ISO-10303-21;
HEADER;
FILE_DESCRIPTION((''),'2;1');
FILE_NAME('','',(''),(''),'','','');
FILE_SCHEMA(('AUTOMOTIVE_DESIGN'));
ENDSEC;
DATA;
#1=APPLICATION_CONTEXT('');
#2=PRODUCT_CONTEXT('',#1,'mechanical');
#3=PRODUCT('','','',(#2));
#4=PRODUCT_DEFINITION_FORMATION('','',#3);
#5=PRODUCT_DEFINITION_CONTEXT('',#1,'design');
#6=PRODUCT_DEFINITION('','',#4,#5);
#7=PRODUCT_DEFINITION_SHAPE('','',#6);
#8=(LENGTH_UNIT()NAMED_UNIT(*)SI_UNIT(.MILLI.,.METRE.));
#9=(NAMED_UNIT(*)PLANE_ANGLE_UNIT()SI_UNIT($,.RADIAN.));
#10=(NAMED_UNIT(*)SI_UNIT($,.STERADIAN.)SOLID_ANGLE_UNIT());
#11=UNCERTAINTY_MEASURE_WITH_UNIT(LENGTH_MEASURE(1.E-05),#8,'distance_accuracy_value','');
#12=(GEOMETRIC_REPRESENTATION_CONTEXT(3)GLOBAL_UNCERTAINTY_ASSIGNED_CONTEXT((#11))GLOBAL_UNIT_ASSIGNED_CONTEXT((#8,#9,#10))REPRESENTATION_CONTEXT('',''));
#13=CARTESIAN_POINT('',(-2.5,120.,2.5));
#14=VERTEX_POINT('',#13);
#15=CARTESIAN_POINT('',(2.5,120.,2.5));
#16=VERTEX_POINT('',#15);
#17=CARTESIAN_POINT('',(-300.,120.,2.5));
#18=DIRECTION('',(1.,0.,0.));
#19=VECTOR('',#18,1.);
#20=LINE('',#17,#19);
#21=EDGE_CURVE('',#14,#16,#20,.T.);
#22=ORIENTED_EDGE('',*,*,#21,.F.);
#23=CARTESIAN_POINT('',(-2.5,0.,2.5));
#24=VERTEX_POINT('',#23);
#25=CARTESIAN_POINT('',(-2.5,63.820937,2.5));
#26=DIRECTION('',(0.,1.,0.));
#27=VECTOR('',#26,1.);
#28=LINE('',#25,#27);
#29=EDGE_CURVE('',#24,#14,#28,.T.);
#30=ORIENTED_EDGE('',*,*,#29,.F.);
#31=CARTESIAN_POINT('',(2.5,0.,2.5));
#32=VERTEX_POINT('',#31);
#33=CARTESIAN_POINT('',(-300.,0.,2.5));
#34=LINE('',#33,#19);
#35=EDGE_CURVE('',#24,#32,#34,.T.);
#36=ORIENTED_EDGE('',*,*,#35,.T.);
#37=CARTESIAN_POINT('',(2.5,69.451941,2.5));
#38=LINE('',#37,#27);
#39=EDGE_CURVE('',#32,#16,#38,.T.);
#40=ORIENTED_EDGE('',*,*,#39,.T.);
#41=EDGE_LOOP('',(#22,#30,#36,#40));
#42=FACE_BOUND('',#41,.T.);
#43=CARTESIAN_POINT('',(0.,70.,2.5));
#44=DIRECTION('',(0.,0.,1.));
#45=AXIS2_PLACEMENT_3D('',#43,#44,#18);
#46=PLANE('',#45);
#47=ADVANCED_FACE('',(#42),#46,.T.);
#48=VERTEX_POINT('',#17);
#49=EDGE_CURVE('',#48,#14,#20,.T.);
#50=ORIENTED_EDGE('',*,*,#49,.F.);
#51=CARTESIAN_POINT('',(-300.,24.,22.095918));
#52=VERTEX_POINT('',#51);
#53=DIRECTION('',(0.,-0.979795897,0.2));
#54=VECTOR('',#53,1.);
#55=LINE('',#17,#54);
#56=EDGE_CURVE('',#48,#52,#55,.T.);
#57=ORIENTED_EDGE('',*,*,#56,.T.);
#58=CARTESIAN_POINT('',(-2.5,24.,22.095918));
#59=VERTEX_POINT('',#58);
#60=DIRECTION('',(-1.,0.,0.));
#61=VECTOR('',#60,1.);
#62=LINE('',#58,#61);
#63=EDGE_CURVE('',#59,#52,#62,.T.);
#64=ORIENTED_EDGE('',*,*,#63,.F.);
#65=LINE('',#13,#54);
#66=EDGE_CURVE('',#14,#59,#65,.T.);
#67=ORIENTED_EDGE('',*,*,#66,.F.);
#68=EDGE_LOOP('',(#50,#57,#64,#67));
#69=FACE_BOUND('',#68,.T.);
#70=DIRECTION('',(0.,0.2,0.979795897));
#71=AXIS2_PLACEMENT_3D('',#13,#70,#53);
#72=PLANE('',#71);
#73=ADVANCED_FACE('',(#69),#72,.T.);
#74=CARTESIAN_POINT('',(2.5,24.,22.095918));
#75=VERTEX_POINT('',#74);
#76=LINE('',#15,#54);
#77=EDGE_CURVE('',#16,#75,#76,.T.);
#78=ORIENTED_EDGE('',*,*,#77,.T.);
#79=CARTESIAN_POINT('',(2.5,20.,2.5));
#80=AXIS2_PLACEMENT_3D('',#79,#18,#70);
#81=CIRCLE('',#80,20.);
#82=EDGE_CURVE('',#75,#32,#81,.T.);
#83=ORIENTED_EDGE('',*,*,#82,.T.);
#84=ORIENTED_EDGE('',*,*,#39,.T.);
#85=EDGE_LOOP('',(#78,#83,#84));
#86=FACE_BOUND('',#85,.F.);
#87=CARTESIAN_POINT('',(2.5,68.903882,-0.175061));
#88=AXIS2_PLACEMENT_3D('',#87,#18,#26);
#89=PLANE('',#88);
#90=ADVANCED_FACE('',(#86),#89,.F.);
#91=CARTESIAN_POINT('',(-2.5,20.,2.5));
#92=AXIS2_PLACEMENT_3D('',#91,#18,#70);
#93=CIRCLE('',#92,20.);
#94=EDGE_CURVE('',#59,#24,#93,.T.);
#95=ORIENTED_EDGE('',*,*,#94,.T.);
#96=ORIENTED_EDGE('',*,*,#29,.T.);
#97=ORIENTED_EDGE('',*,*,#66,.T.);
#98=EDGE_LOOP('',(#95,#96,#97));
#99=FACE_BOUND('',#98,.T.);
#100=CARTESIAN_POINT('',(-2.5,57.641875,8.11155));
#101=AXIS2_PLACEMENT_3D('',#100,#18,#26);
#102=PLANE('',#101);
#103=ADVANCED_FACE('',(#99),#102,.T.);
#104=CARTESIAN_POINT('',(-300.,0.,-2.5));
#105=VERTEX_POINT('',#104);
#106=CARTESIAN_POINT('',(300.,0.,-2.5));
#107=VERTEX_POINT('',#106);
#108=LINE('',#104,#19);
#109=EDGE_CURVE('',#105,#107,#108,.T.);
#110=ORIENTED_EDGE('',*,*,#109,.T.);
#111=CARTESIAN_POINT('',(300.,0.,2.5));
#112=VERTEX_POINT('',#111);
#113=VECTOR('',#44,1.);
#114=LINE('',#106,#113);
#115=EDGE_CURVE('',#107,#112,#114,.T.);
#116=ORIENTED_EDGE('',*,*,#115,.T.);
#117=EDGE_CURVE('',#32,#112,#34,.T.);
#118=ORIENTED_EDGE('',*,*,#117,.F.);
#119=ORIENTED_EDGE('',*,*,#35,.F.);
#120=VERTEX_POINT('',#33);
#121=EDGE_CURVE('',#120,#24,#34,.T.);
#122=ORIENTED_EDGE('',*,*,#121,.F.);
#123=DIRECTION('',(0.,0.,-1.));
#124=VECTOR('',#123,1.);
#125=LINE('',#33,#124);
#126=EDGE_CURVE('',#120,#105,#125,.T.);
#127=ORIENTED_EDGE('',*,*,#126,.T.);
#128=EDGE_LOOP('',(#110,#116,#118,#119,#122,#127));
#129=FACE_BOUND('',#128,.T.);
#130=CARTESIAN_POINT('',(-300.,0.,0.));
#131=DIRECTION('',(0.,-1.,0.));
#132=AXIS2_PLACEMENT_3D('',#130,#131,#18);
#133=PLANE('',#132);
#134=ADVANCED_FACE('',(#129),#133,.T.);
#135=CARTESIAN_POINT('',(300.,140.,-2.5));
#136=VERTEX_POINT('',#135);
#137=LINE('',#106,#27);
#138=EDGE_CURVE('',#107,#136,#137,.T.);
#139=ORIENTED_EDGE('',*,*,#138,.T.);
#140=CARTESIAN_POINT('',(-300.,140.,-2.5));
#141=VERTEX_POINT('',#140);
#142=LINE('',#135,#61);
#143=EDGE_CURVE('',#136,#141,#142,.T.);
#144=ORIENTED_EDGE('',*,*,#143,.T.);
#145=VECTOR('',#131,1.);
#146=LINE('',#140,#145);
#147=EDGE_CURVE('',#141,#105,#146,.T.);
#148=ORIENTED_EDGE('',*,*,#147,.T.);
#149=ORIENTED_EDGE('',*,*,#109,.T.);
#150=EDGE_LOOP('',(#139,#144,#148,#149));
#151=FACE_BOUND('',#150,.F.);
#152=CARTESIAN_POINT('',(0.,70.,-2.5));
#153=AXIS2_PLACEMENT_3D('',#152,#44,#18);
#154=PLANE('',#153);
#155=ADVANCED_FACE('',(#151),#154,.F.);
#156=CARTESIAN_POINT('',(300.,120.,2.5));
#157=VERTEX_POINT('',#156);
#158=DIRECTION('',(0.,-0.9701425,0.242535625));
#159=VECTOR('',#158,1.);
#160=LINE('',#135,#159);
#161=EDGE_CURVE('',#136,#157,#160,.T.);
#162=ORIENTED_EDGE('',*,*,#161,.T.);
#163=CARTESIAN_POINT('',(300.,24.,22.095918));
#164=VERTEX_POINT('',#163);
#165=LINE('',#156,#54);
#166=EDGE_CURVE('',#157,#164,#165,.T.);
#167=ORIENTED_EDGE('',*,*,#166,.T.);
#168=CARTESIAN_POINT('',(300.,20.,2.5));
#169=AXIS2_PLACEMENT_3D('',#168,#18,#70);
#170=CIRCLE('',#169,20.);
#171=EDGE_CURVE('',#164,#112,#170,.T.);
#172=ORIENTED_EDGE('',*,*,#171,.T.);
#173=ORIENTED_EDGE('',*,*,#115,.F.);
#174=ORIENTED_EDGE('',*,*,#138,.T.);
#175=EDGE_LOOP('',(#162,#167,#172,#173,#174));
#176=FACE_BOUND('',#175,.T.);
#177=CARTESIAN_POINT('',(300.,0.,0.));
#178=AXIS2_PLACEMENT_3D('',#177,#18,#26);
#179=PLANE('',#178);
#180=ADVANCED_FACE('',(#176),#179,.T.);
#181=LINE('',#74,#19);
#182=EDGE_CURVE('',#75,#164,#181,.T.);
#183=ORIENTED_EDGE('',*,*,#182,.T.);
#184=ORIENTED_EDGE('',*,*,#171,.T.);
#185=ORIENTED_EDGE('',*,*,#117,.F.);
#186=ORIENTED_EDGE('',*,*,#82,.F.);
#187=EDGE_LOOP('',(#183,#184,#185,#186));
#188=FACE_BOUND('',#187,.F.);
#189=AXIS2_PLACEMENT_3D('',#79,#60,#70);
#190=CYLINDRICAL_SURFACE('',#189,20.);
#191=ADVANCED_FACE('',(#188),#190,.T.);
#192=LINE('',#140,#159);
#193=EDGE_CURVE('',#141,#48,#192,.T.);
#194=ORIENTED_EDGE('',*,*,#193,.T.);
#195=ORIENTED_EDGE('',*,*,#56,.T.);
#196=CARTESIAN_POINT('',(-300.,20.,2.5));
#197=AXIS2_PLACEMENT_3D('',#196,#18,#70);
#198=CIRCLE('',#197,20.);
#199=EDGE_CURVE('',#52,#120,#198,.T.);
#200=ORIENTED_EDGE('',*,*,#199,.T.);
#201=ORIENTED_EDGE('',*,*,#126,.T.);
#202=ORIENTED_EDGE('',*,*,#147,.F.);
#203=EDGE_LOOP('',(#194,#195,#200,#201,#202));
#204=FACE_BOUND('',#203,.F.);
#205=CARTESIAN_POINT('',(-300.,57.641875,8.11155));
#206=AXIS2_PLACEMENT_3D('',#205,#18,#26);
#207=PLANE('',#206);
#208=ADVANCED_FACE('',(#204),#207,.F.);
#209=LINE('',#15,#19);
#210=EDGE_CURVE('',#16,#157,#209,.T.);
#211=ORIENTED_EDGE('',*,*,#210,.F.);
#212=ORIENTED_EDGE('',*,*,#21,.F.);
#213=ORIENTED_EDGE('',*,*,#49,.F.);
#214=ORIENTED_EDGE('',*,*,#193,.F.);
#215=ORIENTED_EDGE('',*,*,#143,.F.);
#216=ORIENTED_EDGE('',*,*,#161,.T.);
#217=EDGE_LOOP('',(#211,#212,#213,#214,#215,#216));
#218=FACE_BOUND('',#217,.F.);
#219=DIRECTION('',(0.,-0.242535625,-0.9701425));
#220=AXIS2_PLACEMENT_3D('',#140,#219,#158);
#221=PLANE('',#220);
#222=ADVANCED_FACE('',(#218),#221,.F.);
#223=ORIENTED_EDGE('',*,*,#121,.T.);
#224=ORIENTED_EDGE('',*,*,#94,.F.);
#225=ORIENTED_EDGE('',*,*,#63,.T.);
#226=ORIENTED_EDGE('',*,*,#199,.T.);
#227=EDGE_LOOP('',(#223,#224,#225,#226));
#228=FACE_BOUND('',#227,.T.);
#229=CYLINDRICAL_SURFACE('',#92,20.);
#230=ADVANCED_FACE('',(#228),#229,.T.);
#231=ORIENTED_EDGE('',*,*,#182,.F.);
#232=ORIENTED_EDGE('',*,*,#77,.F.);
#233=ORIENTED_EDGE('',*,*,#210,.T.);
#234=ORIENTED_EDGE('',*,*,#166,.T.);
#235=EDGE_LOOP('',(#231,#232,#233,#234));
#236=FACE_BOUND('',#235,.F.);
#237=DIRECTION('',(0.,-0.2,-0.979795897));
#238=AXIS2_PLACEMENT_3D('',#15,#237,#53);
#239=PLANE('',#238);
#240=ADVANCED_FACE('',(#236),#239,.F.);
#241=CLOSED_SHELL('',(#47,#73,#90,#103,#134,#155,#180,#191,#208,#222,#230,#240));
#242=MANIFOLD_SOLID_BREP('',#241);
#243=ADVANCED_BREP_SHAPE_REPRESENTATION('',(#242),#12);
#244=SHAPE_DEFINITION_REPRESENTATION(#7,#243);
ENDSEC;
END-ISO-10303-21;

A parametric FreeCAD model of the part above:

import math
import FreeCAD as App
import Part
import Sketcher

V = App.Vector

doc = App.newDocument("Part")
body = doc.addObject("PartDesign::Body", "Body")

# Sketch on XY plane
sketch1 = body.newObject("Sketcher::SketchObject", "Sketch")
sketch1.AttachmentSupport = (doc.getObject("XY_Plane"), [""])
sketch1.MapMode = "FlatFace"
sketch1.addGeometry(Part.LineSegment(V(-300, 0, 0), V(300, 0, 0)), False)
sketch1.addGeometry(Part.LineSegment(V(300, 0, 0), V(300, 140, 0)), False)
sketch1.addGeometry(Part.LineSegment(V(300, 140, 0), V(-300, 140, 0)), False)
sketch1.addGeometry(Part.LineSegment(V(-300, 140, 0), V(-300, 0, 0)), False)
sketch1.addConstraint(Sketcher.Constraint("Coincident", 0, 2, 1, 1))
sketch1.addConstraint(Sketcher.Constraint("Coincident", 1, 2, 2, 1))
sketch1.addConstraint(Sketcher.Constraint("Coincident", 2, 2, 3, 1))
sketch1.addConstraint(Sketcher.Constraint("Coincident", 3, 2, 0, 1))
sketch1.addConstraint(Sketcher.Constraint("Horizontal", 0))
sketch1.addConstraint(Sketcher.Constraint("Vertical", 1))
sketch1.addConstraint(Sketcher.Constraint("Horizontal", 2))
sketch1.addConstraint(Sketcher.Constraint("Vertical", 3))
sketch1.addConstraint(Sketcher.Constraint("Symmetric", 0, 2, 3, 2, -1, 1))
sketch1.addConstraint(Sketcher.Constraint("DistanceX", 0, 1, 0, 2, 600.0))
sketch1.addConstraint(Sketcher.Constraint("DistanceY", 1, 1, 1, 2, 140.0))
pad1 = body.newObject("PartDesign::Pad", "Pad")
pad1.Profile = sketch1
pad1.Length = 5
pad1.Midplane = True

# Sketch on YZ plane
sketch2 = body.newObject("Sketcher::SketchObject", "Sketch001")
sketch2.AttachmentSupport = (doc.getObject("YZ_Plane"), [""])
sketch2.MapMode = "FlatFace"
sketch2.AttachmentOffset = App.Placement(V(0, 0, 2.5), App.Rotation())
sketch2.addGeometry(Part.LineSegment(V(0, 2.5, 0), V(0, -2.5, 0)), False)
sketch2.addGeometry(Part.LineSegment(V(0, -2.5, 0), V(140, -2.5, 0)), False)
sketch2.addGeometry(Part.LineSegment(V(140, -2.5, 0), V(140, 2.5, 0)), False)
sketch2.addGeometry(Part.LineSegment(V(140, 2.5, 0), V(120, 2.5, 0)), False)
sketch2.addGeometry(Part.LineSegment(V(120, 2.5, 0), V(24, 22.095918, 0)), False)
sketch2.addGeometry(Part.ArcOfCircle(Part.Circle(V(20, 2.5, 0), V(0, 0, 1), 20), math.radians(78.463041), math.radians(180)), False)
sketch2.addConstraint(Sketcher.Constraint("Coincident", 0, 2, 1, 1))
sketch2.addConstraint(Sketcher.Constraint("Coincident", 1, 2, 2, 1))
sketch2.addConstraint(Sketcher.Constraint("Coincident", 2, 2, 3, 1))
sketch2.addConstraint(Sketcher.Constraint("Coincident", 3, 2, 4, 1))
sketch2.addConstraint(Sketcher.Constraint("Tangent", 4, 2, 5, 1))
sketch2.addConstraint(Sketcher.Constraint("Tangent", 5, 2, 0, 1))
sketch2.addConstraint(Sketcher.Constraint("Vertical", 0))
sketch2.addConstraint(Sketcher.Constraint("Horizontal", 1))
sketch2.addConstraint(Sketcher.Constraint("Vertical", 2))
sketch2.addConstraint(Sketcher.Constraint("Horizontal", 3))
sketch2.addConstraint(Sketcher.Constraint("Symmetric", 0, 2, 5, 2, -1, 1))
sketch2.addConstraint(Sketcher.Constraint("Horizontal", 5, 3, 2, 2))
sketch2.addConstraint(Sketcher.Constraint("Radius", 5, 20.0))
sketch2.addConstraint(Sketcher.Constraint("DistanceX", 1, 1, 1, 2, 140.0))
sketch2.addConstraint(Sketcher.Constraint("DistanceX", 3, 2, 3, 1, 20.0))
sketch2.addConstraint(Sketcher.Constraint("DistanceY", 0, 2, 0, 1, 5.0))
pad2 = body.newObject("PartDesign::Pad", "Pad001")
pad2.Profile = sketch2
pad2.Length = 297.5

# Sketch on YZ plane
sketch3 = body.newObject("Sketcher::SketchObject", "Sketch002")
sketch3.AttachmentSupport = (doc.getObject("YZ_Plane"), [""])
sketch3.MapMode = "FlatFace"
sketch3.AttachmentOffset = App.Placement(V(0, 0, -300), App.Rotation())
sketch3.addGeometry(Part.LineSegment(V(140, -2.5, 0), V(120, 2.5, 0)), False)
sketch3.addGeometry(Part.LineSegment(V(120, 2.5, 0), V(140, 2.5, 0)), False)
sketch3.addGeometry(Part.LineSegment(V(140, 2.5, 0), V(140, -2.5, 0)), False)
sketch3.addConstraint(Sketcher.Constraint("Coincident", 0, 2, 1, 1))
sketch3.addConstraint(Sketcher.Constraint("Coincident", 1, 2, 2, 1))
sketch3.addConstraint(Sketcher.Constraint("Coincident", 2, 2, 0, 1))
sketch3.addConstraint(Sketcher.Constraint("Horizontal", 1))
sketch3.addConstraint(Sketcher.Constraint("Vertical", 2))
sketch3.addConstraint(Sketcher.Constraint("DistanceX", 1, 1, 1, 2, 20.0))
sketch3.addConstraint(Sketcher.Constraint("DistanceY", 2, 2, 2, 1, 5.0))
sketch3.addConstraint(Sketcher.Constraint("DistanceX", -1, 1, 0, 2, 120.0))
sketch3.addConstraint(Sketcher.Constraint("DistanceY", -1, 1, 0, 2, 2.5))
pocket1 = body.newObject("PartDesign::Pocket", "Pocket")
pocket1.Profile = sketch3
pocket1.Length = 600
pocket1.Reversed = True

# Sketch on YZ plane
sketch4 = body.newObject("Sketcher::SketchObject", "Sketch003")
sketch4.AttachmentSupport = (doc.getObject("YZ_Plane"), [""])
sketch4.MapMode = "FlatFace"
sketch4.AttachmentOffset = App.Placement(V(0, 0, -2.5), App.Rotation())
sketch4.addGeometry(Part.ArcOfCircle(Part.Circle(V(20, 2.5, 0), V(0, 0, 1), 20), math.radians(78.463041), math.radians(180)), False)
sketch4.addGeometry(Part.LineSegment(V(0, 2.5, 0), V(0, -2.5, 0)), False)
sketch4.addGeometry(Part.LineSegment(V(0, -2.5, 0), V(140, -2.5, 0)), False)
sketch4.addGeometry(Part.LineSegment(V(140, -2.5, 0), V(120, 2.5, 0)), False)
sketch4.addGeometry(Part.LineSegment(V(120, 2.5, 0), V(24, 22.095918, 0)), False)
sketch4.addConstraint(Sketcher.Constraint("Tangent", 0, 2, 1, 1))
sketch4.addConstraint(Sketcher.Constraint("Coincident", 1, 2, 2, 1))
sketch4.addConstraint(Sketcher.Constraint("Coincident", 2, 2, 3, 1))
sketch4.addConstraint(Sketcher.Constraint("Coincident", 3, 2, 4, 1))
sketch4.addConstraint(Sketcher.Constraint("Tangent", 4, 2, 0, 1))
sketch4.addConstraint(Sketcher.Constraint("Vertical", 1))
sketch4.addConstraint(Sketcher.Constraint("Horizontal", 2))
sketch4.addConstraint(Sketcher.Constraint("Symmetric", 0, 2, 1, 2, -1, 1))
sketch4.addConstraint(Sketcher.Constraint("Horizontal", 0, 2, 3, 2))
sketch4.addConstraint(Sketcher.Constraint("Radius", 0, 20.0))
sketch4.addConstraint(Sketcher.Constraint("DistanceX", 2, 1, 2, 2, 140.0))
sketch4.addConstraint(Sketcher.Constraint("DistanceY", 1, 2, 1, 1, 5.0))
sketch4.addConstraint(Sketcher.Constraint("DistanceX", -1, 1, 3, 2, 120.0))
pad3 = body.newObject("PartDesign::Pad", "Pad002")
pad3.Profile = sketch4
pad3.Length = 297.5
pad3.Reversed = True

doc.recompute()
